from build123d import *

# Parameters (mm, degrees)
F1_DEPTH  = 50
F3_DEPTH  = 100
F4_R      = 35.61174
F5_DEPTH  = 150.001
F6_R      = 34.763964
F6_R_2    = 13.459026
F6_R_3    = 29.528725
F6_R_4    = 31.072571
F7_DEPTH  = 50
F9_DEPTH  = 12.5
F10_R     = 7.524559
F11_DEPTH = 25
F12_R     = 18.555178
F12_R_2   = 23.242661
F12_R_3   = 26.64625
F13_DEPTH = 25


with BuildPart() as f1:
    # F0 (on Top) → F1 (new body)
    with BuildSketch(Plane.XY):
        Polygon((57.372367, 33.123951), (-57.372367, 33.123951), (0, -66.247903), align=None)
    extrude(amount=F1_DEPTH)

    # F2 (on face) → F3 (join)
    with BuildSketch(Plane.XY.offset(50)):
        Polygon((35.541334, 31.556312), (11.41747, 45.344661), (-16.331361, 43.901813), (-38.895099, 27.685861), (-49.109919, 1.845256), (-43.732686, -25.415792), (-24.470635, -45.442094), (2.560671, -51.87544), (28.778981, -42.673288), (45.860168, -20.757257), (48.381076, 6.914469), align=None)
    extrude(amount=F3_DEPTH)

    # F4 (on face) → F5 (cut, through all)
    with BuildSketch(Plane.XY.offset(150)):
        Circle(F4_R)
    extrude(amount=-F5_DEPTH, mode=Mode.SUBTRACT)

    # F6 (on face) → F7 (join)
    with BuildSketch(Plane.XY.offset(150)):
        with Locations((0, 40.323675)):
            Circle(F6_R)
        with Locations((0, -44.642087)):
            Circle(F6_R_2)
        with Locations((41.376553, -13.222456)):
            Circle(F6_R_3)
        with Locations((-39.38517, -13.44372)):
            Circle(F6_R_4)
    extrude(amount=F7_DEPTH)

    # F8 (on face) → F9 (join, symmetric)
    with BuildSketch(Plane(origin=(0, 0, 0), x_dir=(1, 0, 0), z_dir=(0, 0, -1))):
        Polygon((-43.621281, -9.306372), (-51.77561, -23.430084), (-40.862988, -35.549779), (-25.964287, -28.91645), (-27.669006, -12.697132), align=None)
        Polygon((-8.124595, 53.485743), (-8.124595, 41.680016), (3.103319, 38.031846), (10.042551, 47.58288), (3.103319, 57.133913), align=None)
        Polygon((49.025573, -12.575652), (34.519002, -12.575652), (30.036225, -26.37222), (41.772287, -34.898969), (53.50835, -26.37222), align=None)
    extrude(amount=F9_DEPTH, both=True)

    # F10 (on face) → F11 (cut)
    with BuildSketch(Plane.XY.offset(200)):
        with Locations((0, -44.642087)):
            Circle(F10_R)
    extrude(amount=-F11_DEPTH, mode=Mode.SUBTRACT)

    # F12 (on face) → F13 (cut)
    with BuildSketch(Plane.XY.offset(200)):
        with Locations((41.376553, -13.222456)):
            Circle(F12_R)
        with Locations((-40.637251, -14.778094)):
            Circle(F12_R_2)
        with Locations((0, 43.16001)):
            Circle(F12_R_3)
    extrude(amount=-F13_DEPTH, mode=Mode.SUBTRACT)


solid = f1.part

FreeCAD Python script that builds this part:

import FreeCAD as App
import Part
import Sketcher
from FreeCAD import Vector
Q = App.Units.Quantity


def add_polygon(sketch, points):
    """Adds a closed chain of lines whose ends are joined by coincident constraints."""
    first, n = sketch.GeometryCount, len(points)
    for a, b in zip(points, points[1:] + points[:1]):
        sketch.addGeometry(Part.LineSegment(App.Vector(*a, 0), App.Vector(*b, 0)), False)
    for i in range(n):
        sketch.addConstraint(Sketcher.Constraint("Coincident", first + i, 2, first + (i + 1) % n, 1))

doc = App.newDocument("Part")
params = doc.addObject("Spreadsheet::Sheet", "Params")
for row, (alias, value) in enumerate([
    ("pad1_length", "50 mm"),
    ("pad2_length", "100 mm"),
    ("pad3_length", "50 mm"),
    ("pad4_length", "25 mm"),
    ("pocket2_length", "25 mm"),
    ("pocket3_length", "25 mm"),
], start=1):
    params.set(f"A{row}", alias)
    params.set(f"B{row}", "=" + value)
    params.setAlias(f"B{row}", alias)

body = doc.addObject("PartDesign::Body", "Body")

sketch1 = doc.addObject("Sketcher::SketchObject", "Sketch")
body.addObject(sketch1)
sketch1.AttachmentSupport = (doc.XY_Plane, [""])
sketch1.MapMode = "FlatFace"
add_polygon(sketch1, [(57, 33), (-57, 33), (0, -66)])
sketch1.addConstraint(Sketcher.Constraint("Horizontal", 0))
sketch1.addConstraint(Sketcher.Constraint("PointOnObject", 1, 2, -2))
sketch1.addConstraint(Sketcher.Constraint("Equal", 1, 2))
sketch1.addConstraint(Sketcher.Constraint("Angle", 1, Q("-60 deg")))
sketch1.addConstraint(Sketcher.Constraint("DistanceX", 0, 2, 0, 1, Q("114.744734 mm")))
sketch1.addConstraint(Sketcher.Constraint("DistanceY", -1, 1, 0, 2, Q("33.123951 mm")))
pad1 = doc.addObject("PartDesign::Pad", "Pad")
body.addObject(pad1)
pad1.Profile = sketch1
pad1.setExpression("Length", "Params.pad1_length")

sketch2 = doc.addObject("Sketcher::SketchObject", "Sketch001")
body.addObject(sketch2)
sketch2.AttachmentSupport = (doc.XY_Plane, [""])
sketch2.MapMode = "FlatFace"
sketch2.AttachmentOffset = App.Placement(Vector(0, 0, 50), App.Rotation())
add_polygon(sketch2, [(36, 32), (11, 45), (-16, 44), (-39, 28), (-49, 2), (-44, -25), (-24, -45), (3, -52), (29, -43), (46, -21), (48, 7)])
sketch2.addConstraint(Sketcher.Constraint("Equal", 0, 1))
sketch2.addConstraint(Sketcher.Constraint("Equal", 1, 2))
sketch2.addConstraint(Sketcher.Constraint("Equal", 2, 3))
sketch2.addConstraint(Sketcher.Constraint("Equal", 3, 4))
sketch2.addConstraint(Sketcher.Constraint("Equal", 4, 5))
sketch2.addConstraint(Sketcher.Constraint("Equal", 5, 6))
sketch2.addConstraint(Sketcher.Constraint("Equal", 6, 7))
sketch2.addConstraint(Sketcher.Constraint("Equal", 7, 8))
sketch2.addConstraint(Sketcher.Constraint("Equal", 8, 9))
sketch2.addConstraint(Sketcher.Constraint("Equal", 9, 10))
sketch2.addConstraint(Sketcher.Constraint("DistanceX", 2, 2, -1, 1, Q("38.895099 mm")))
sketch2.addConstraint(Sketcher.Constraint("DistanceY", 2, 2, 0, 2, Q("17.6588 mm")))
sketch2.addConstraint(Sketcher.Constraint("DistanceY", 5, 2, 4, 2, Q("20.026302 mm")))
sketch2.addConstraint(Sketcher.Constraint("DistanceY", 6, 2, 2, 2, Q("79.561301 mm")))
sketch2.addConstraint(Sketcher.Constraint("DistanceX", 6, 2, 0, 2, Q("8.856799 mm")))
sketch2.addConstraint(Sketcher.Constraint("DistanceX", 3, 2, 7, 2, Q("77.8889 mm")))
sketch2.addConstraint(Sketcher.Constraint("DistanceY", 10, 2, 1, 2, Q("12.345501 mm")))
sketch2.addConstraint(Sketcher.Constraint("DistanceY", 7, 2, 10, 2, Q("74.2296 mm")))
sketch2.addConstraint(Sketcher.Constraint("DistanceX", -1, 1, 0, 2, Q("11.41747 mm")))
sketch2.addConstraint(Sketcher.Constraint("DistanceY", -1, 1, 0, 2, Q("45.344661 mm")))
sketch2.addConstraint(Sketcher.Constraint("DistanceX", 1, 2, -1, 1, Q("16.331361 mm")))
sketch2.addConstraint(Sketcher.Constraint("DistanceX", -1, 1, 8, 2, Q("45.860168 mm")))
pad2 = doc.addObject("PartDesign::Pad", "Pad001")
body.addObject(pad2)
pad2.Profile = sketch2
pad2.setExpression("Length", "Params.pad2_length")

sketch3 = doc.addObject("Sketcher::SketchObject", "Sketch002")
body.addObject(sketch3)
sketch3.AttachmentSupport = (doc.XY_Plane, [""])
sketch3.MapMode = "FlatFace"
sketch3.AttachmentOffset = App.Placement(Vector(0, 0, 150), App.Rotation())
sketch3.addGeometry(Part.Circle(Vector(0, 0, 0), Vector(0, 0, 1), 36), False)
sketch3.addConstraint(Sketcher.Constraint("Coincident", 0, 3, -1, 1))
sketch3.addConstraint(Sketcher.Constraint("Diameter", 0, Q("71.22348 mm")))
pocket1 = doc.addObject("PartDesign::Pocket", "Pocket")
body.addObject(pocket1)
pocket1.Profile = sketch3
pocket1.Type = "ThroughAll"

sketch4 = doc.addObject("Sketcher::SketchObject", "Sketch003")
body.addObject(sketch4)
sketch4.AttachmentSupport = (doc.XY_Plane, [""])
sketch4.MapMode = "FlatFace"
sketch4.AttachmentOffset = App.Placement(Vector(0, 0, 150), App.Rotation())
sketch4.addGeometry(Part.Circle(Vector(0, 40, 0), Vector(0, 0, 1), 35), False)
sketch4.addGeometry(Part.Circle(Vector(0, -45, 0), Vector(0, 0, 1), 13), False)
sketch4.addGeometry(Part.Circle(Vector(41, -13, 0), Vector(0, 0, 1), 30), False)
sketch4.addGeometry(Part.Circle(Vector(-39, -13, 0), Vector(0, 0, 1), 31), False)
sketch4.addConstraint(Sketcher.Constraint("PointOnObject", 0, 3, -2))
sketch4.addConstraint(Sketcher.Constraint("PointOnObject", 1, 3, -2))
sketch4.addConstraint(Sketcher.Constraint("Diameter", 0, Q("69.527928 mm")))
sketch4.addConstraint(Sketcher.Constraint("Diameter", 1, Q("26.918052 mm")))
sketch4.addConstraint(Sketcher.Constraint("Diameter", 2, Q("59.05745 mm")))
sketch4.addConstraint(Sketcher.Constraint("Diameter", 3, Q("62.145142 mm")))
sketch4.addConstraint(Sketcher.Constraint("DistanceX", 3, 3, -1, 1, Q("39.38517 mm")))
sketch4.addConstraint(Sketcher.Constraint("DistanceY", 3, 3, -1, 1, Q("13.44372 mm")))
sketch4.addConstraint(Sketcher.Constraint("DistanceY", 1, 3, 0, 3, Q("84.965762 mm")))
sketch4.addConstraint(Sketcher.Constraint("DistanceY", 1, 3, 2, 3, Q("31.419631 mm")))
sketch4.addConstraint(Sketcher.Constraint("DistanceY", -1, 1, 0, 3, Q("40.323675 mm")))
sketch4.addConstraint(Sketcher.Constraint("DistanceX", -1, 1, 2, 3, Q("41.376553 mm")))
pad3 = doc.addObject("PartDesign::Pad", "Pad002")
body.addObject(pad3)
pad3.Profile = sketch4
pad3.setExpression("Length", "Params.pad3_length")

sketch5 = doc.addObject("Sketcher::SketchObject", "Sketch004")
body.addObject(sketch5)
sketch5.AttachmentSupport = (doc.XY_Plane, [""])
sketch5.MapMode = "FlatFace"
add_polygon(sketch5, [(-44, 9), (-52, 23), (-41, 36), (-26, 29), (-28, 13)])
add_polygon(sketch5, [(-8, -53), (-8, -42), (3, -38), (10, -48), (3, -57)])
add_polygon(sketch5, [(49, 13), (35, 13), (30, 26), (42, 35), (54, 26)])
sketch5.addConstraint(Sketcher.Constraint("Vertical", 5))
sketch5.addConstraint(Sketcher.Constraint("Horizontal", 10))
sketch5.addConstraint(Sketcher.Constraint("Perpendicular", 6, 11))
sketch5.addConstraint(Sketcher.Constraint("Perpendicular", 7, 12))
sketch5.addConstraint(Sketcher.Constraint("Perpendicular", 8, 13))
sketch5.addConstraint(Sketcher.Constraint("Perpendicular", 9, 14))
sketch5.addConstraint(Sketcher.Constraint("Horizontal", 11, 2, 13, 2))
sketch5.addConstraint(Sketcher.Constraint("Vertical", 6, 2, 8, 2))
sketch5.addConstraint(Sketcher.Constraint("Equal", 0, 1))
sketch5.addConstraint(Sketcher.Constraint("Equal", 1, 2))
sketch5.addConstraint(Sketcher.Constraint("Equal", 2, 3))
sketch5.addConstraint(Sketcher.Constraint("Equal", 3, 4))
sketch5.addConstraint(Sketcher.Constraint("Equal", 6, 7))
sketch5.addConstraint(Sketcher.Constraint("Equal", 7, 8))
sketch5.addConstraint(Sketcher.Constraint("Equal", 8, 9))
sketch5.addConstraint(Sketcher.Constraint("Equal", 11, 12))
sketch5.addConstraint(Sketcher.Constraint("Angle", 0, Q("120 deg")))
sketch5.addConstraint(Sketcher.Constraint("Angle", 1, Q("48.000001 deg")))
sketch5.addConstraint(Sketcher.Constraint("Angle", 2, Q("-24 deg")))
sketch5.addConstraint(Sketcher.Constraint("Angle", 6, Q("17.999998 deg")))
sketch5.addConstraint(Sketcher.Constraint("Angle", 7, Q("-54.000002 deg")))
sketch5.addConstraint(Sketcher.Constraint("DistanceX", 10, 2, 10, 1, Q("14.506571 mm")))
sketch5.addConstraint(Sketcher.Constraint("DistanceX", 1, 2, 2, 2, Q("14.898701 mm")))
sketch5.addConstraint(Sketcher.Constraint("DistanceY", 5, 2, 0, 2, Q("65.1101 mm")))
sketch5.addConstraint(Sketcher.Constraint("DistanceX", 4, 2, 6, 2, Q("46.7246 mm")))
sketch5.addConstraint(Sketcher.Constraint("DistanceY", 5, 1, 5, 2, Q("11.805727 mm")))
sketch5.addConstraint(Sketcher.Constraint("DistanceX", 0, 2, -1, 1, Q("51.77561 mm")))
sketch5.addConstraint(Sketcher.Constraint("DistanceY", -1, 1, 1, 2, Q("35.549779 mm")))
sketch5.addConstraint(Sketcher.Constraint("DistanceY", -1, 1, 11, 2, Q("26.37222 mm")))
sketch5.addConstraint(Sketcher.Constraint("DistanceX", -1, 1, 13, 2, Q("53.50835 mm")))
pad4 = doc.addObject("PartDesign::Pad", "Pad003")
body.addObject(pad4)
pad4.Profile = sketch5
pad4.setExpression("Length", "Params.pad4_length")
pad4.Midplane = True

sketch6 = doc.addObject("Sketcher::SketchObject", "Sketch005")
body.addObject(sketch6)
sketch6.AttachmentSupport = (doc.XY_Plane, [""])
sketch6.MapMode = "FlatFace"
sketch6.AttachmentOffset = App.Placement(Vector(0, 0, 200), App.Rotation())
sketch6.addGeometry(Part.Circle(Vector(0, -45, 0), Vector(0, 0, 1), 8), False)
sketch6.addConstraint(Sketcher.Constraint("PointOnObject", 0, 3, -2))
sketch6.addConstraint(Sketcher.Constraint("Diameter", 0, Q("15.049118 mm")))
sketch6.addConstraint(Sketcher.Constraint("DistanceY", 0, 3, -1, 1, Q("44.642087 mm")))
pocket2 = doc.addObject("PartDesign::Pocket", "Pocket001")
body.addObject(pocket2)
pocket2.Profile = sketch6
pocket2.setExpression("Length", "Params.pocket2_length")

sketch7 = doc.addObject("Sketcher::SketchObject", "Sketch006")
body.addObject(sketch7)
sketch7.AttachmentSupport = (doc.XY_Plane, [""])
sketch7.MapMode = "FlatFace"
sketch7.AttachmentOffset = App.Placement(Vector(0, 0, 200), App.Rotation())
sketch7.addGeometry(Part.Circle(Vector(41, -13, 0), Vector(0, 0, 1), 19), False)
sketch7.addGeometry(Part.Circle(Vector(-41, -15, 0), Vector(0, 0, 1), 23), False)
sketch7.addGeometry(Part.Circle(Vector(0, 43, 0), Vector(0, 0, 1), 27), False)
sketch7.addConstraint(Sketcher.Constraint("PointOnObject", 2, 3, -2))
sketch7.addConstraint(Sketcher.Constraint("Diameter", 2, Q("53.2925 mm")))
sketch7.addConstraint(Sketcher.Constraint("Diameter", 1, Q("46.485322 mm")))
sketch7.addConstraint(Sketcher.Constraint("Diameter", 0, Q("37.110356 mm")))
sketch7.addConstraint(Sketcher.Constraint("DistanceX", 1, 3, -1, 1, Q("40.637251 mm")))
sketch7.addConstraint(Sketcher.Constraint("DistanceY", -1, 1, 2, 3, Q("43.16001 mm")))
sketch7.addConstraint(Sketcher.Constraint("DistanceY", 1, 3, 0, 3, Q("1.555638 mm")))
sketch7.addConstraint(Sketcher.Constraint("DistanceX", -1, 1, 0, 3, Q("41.376553 mm")))
sketch7.addConstraint(Sketcher.Constraint("DistanceY", 0, 3, -1, 1, Q("13.222456 mm")))
pocket3 = doc.addObject("PartDesign::Pocket", "Pocket002")
body.addObject(pocket3)
pocket3.Profile = sketch7
pocket3.setExpression("Length", "Params.pocket3_length")

doc.recompute()
